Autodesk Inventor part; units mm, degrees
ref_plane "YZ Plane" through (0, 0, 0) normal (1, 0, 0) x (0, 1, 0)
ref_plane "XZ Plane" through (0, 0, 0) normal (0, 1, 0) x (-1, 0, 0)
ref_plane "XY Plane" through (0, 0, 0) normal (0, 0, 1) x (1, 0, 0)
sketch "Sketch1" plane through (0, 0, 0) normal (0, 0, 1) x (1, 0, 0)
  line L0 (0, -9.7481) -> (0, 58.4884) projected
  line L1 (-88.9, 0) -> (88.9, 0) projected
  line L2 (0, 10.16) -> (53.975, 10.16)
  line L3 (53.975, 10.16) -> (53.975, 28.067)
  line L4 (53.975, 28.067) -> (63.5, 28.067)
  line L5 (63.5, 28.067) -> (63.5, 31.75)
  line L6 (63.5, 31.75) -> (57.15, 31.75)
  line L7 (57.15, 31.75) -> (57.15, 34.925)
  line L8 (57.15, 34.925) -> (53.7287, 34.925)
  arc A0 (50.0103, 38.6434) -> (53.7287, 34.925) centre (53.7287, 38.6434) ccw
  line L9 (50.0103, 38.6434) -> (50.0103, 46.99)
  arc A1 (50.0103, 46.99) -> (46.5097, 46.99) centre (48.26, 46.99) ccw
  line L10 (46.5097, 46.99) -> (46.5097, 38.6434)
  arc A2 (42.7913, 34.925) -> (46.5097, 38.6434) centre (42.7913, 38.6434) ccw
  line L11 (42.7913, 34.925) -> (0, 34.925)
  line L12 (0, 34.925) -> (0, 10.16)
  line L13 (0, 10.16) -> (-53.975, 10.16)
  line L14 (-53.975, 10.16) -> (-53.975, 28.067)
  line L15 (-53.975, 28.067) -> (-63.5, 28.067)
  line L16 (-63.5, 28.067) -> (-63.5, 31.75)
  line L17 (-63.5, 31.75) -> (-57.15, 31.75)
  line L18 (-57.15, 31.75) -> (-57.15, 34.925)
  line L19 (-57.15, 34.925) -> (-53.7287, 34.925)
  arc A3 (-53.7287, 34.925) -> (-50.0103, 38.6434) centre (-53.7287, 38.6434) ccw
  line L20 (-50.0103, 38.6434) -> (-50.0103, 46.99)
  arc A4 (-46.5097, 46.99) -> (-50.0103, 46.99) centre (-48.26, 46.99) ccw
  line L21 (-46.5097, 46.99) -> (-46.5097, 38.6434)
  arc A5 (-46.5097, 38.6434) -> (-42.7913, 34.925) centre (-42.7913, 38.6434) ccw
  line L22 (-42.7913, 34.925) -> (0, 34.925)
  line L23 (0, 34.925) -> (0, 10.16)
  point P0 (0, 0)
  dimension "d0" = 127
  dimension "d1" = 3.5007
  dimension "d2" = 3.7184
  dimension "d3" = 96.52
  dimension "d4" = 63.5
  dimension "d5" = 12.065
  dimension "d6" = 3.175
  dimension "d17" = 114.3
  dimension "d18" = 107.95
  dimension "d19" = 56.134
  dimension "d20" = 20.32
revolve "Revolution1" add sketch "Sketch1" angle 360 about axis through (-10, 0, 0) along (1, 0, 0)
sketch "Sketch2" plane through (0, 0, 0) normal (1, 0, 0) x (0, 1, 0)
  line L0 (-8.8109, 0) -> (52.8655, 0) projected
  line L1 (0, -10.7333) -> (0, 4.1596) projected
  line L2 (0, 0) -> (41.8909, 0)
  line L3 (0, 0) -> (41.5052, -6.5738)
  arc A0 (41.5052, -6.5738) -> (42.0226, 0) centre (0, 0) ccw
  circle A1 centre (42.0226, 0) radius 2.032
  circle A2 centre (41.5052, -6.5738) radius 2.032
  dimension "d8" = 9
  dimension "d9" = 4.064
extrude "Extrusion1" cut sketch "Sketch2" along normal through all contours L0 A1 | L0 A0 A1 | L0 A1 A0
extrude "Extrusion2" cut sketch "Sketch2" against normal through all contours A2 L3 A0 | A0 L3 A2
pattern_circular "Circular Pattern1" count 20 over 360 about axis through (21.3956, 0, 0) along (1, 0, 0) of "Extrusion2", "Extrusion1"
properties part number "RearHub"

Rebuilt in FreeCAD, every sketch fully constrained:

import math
import FreeCAD as App
import Part
import Sketcher
Q = App.Units.Quantity

doc = App.newDocument("Part")
body = doc.addObject("PartDesign::Body", "Body")

# Sketch on XY plane
sketch1 = body.newObject("Sketcher::SketchObject", "Sketch")
sketch1.AttachmentSupport = (doc.getObject("XY_Plane"), [""])
sketch1.MapMode = "FlatFace"
sketch1.addGeometry([
    Part.LineSegment(App.Vector(-54, 10.2, 0), App.Vector(54, 10.2, 0)),  # 0
    Part.LineSegment(App.Vector(54, 10.2, 0), App.Vector(54, 28.1, 0)),  # 1
    Part.LineSegment(App.Vector(54, 28.1, 0), App.Vector(63.5, 28.1, 0)),  # 2
    Part.LineSegment(App.Vector(63.5, 28.1, 0), App.Vector(63.5, 31.8, 0)),  # 3
    Part.LineSegment(App.Vector(63.5, 31.8, 0), App.Vector(57.1, 31.8, 0)),  # 4
    Part.LineSegment(App.Vector(57.1, 31.8, 0), App.Vector(57.1, 34.9, 0)),  # 5
    Part.LineSegment(App.Vector(57.1, 34.9, 0), App.Vector(53.7, 34.9, 0)),  # 6
    Part.ArcOfCircle(Part.Circle(App.Vector(53.7, 38.6, 0), App.Vector(0, 0, 1), 3.7), math.radians(180), math.radians(270)),  # 7
    Part.LineSegment(App.Vector(50, 38.6, 0), App.Vector(50, 47, 0)),  # 8
    Part.ArcOfCircle(Part.Circle(App.Vector(48.3, 47, 0), App.Vector(0, 0, 1), 1.8), math.radians(0), math.radians(180)),  # 9
    Part.LineSegment(App.Vector(46.5, 47, 0), App.Vector(46.5, 38.6, 0)),  # 10
    Part.ArcOfCircle(Part.Circle(App.Vector(42.8, 38.6, 0), App.Vector(0, 0, 1), 3.7), math.radians(-90), math.radians(0)),  # 11
    Part.LineSegment(App.Vector(42.8, 34.9, 0), App.Vector(-42.8, 34.9, 0)),  # 12
    Part.ArcOfCircle(Part.Circle(App.Vector(-42.8, 38.6, 0), App.Vector(0, 0, 1), 3.7), math.radians(180), math.radians(270)),  # 13
    Part.LineSegment(App.Vector(-46.5, 38.6, 0), App.Vector(-46.5, 47, 0)),  # 14
    Part.ArcOfCircle(Part.Circle(App.Vector(-48.3, 47, 0), App.Vector(0, 0, 1), 1.8), math.radians(0), math.radians(180)),  # 15
    Part.LineSegment(App.Vector(-50, 47, 0), App.Vector(-50, 38.6, 0)),  # 16
    Part.ArcOfCircle(Part.Circle(App.Vector(-53.7, 38.6, 0), App.Vector(0, 0, 1), 3.7), math.radians(-90), math.radians(0)),  # 17
    Part.LineSegment(App.Vector(-53.7, 34.9, 0), App.Vector(-57.1, 34.9, 0)),  # 18
    Part.LineSegment(App.Vector(-57.1, 34.9, 0), App.Vector(-57.1, 31.8, 0)),  # 19
    Part.LineSegment(App.Vector(-57.1, 31.8, 0), App.Vector(-63.5, 31.8, 0)),  # 20
    Part.LineSegment(App.Vector(-63.5, 31.8, 0), App.Vector(-63.5, 28.1, 0)),  # 21
    Part.LineSegment(App.Vector(-63.5, 28.1, 0), App.Vector(-54, 28.1, 0)),  # 22
    Part.LineSegment(App.Vector(-54, 28.1, 0), App.Vector(-54, 10.2, 0)),  # 23
], False)
sketch1.addConstraint([
    Sketcher.Constraint("Coincident", 0, 2, 1, 1),
    Sketcher.Constraint("Coincident", 1, 2, 2, 1),
    Sketcher.Constraint("Coincident", 2, 2, 3, 1),
    Sketcher.Constraint("Coincident", 3, 2, 4, 1),
    Sketcher.Constraint("Coincident", 4, 2, 5, 1),
    Sketcher.Constraint("Coincident", 5, 2, 6, 1),
    Sketcher.Constraint("Tangent", 6, 2, 7, 2),
    Sketcher.Constraint("Tangent", 7, 1, 8, 1),
    Sketcher.Constraint("Tangent", 8, 2, 9, 1),
    Sketcher.Constraint("Tangent", 9, 2, 10, 1),
    Sketcher.Constraint("Tangent", 10, 2, 11, 2),
    Sketcher.Constraint("Tangent", 11, 1, 12, 1),
    Sketcher.Constraint("Tangent", 12, 2, 13, 2),
    Sketcher.Constraint("Tangent", 13, 1, 14, 1),
    Sketcher.Constraint("Tangent", 14, 2, 15, 1),
    Sketcher.Constraint("Tangent", 15, 2, 16, 1),
    Sketcher.Constraint("Tangent", 16, 2, 17, 2),
    Sketcher.Constraint("Tangent", 17, 1, 18, 1),
    Sketcher.Constraint("Coincident", 18, 2, 19, 1),
    Sketcher.Constraint("Coincident", 19, 2, 20, 1),
    Sketcher.Constraint("Coincident", 20, 2, 21, 1),
    Sketcher.Constraint("Coincident", 21, 2, 22, 1),
    Sketcher.Constraint("Coincident", 22, 2, 23, 1),
    Sketcher.Constraint("Coincident", 23, 2, 0, 1),
    Sketcher.Constraint("Horizontal", 0),
    Sketcher.Constraint("Vertical", 1),
    Sketcher.Constraint("Horizontal", 2),
    Sketcher.Constraint("Vertical", 3),
    Sketcher.Constraint("Horizontal", 4),
    Sketcher.Constraint("Vertical", 5),
    Sketcher.Constraint("Horizontal", 6),
    Sketcher.Constraint("Vertical", 8),
    Sketcher.Constraint("Vertical", 10),
    Sketcher.Constraint("Horizontal", 12),
    Sketcher.Constraint("Vertical", 14),
    Sketcher.Constraint("Vertical", 16),
    Sketcher.Constraint("Horizontal", 18),
    Sketcher.Constraint("Vertical", 19),
    Sketcher.Constraint("Horizontal", 20),
    Sketcher.Constraint("Vertical", 21),
    Sketcher.Constraint("Horizontal", 22),
    Sketcher.Constraint("Vertical", 23),
    Sketcher.Constraint("Equal", 7, 11),
    Sketcher.Constraint("Equal", 11, 13),
    Sketcher.Constraint("Equal", 9, 15),
    Sketcher.Constraint("Equal", 13, 17),
    Sketcher.Constraint("Symmetric", 9, 3, 15, 3, -2),
    Sketcher.Constraint("Symmetric", 5, 2, 18, 2, -2),
    Sketcher.Constraint("Symmetric", 3, 2, 20, 2, -2),
    Sketcher.Constraint("Symmetric", 1, 2, 22, 2, -2),
    Sketcher.Constraint("Horizontal", 7, 3, 11, 3),
    Sketcher.Constraint("DistanceX", 0, 1, 0, 2, Q("4.25 in")),
    Sketcher.Constraint("DistanceX", -1, 1, 2, 2, Q("2.5 in")),
    Sketcher.Constraint("Radius", 7, Q("0.1464 in")),
    Sketcher.Constraint("Radius", 9, Q("0.0689 in")),
    Sketcher.Constraint("DistanceX", 13, 3, 7, 3, Q("3.8 in")),
    Sketcher.Constraint("DistanceY", 5, 1, 5, 2, Q("0.125 in")),
    Sketcher.Constraint("DistanceX", 1, 2, 4, 2, Q("0.125 in")),
    Sketcher.Constraint("DistanceY", 6, 2, 8, 2, Q("0.475 in")),
    Sketcher.Constraint("DistanceY", -1, 1, 0, 2, Q("0.4 in")),
    Sketcher.Constraint("DistanceY", 1, 1, 1, 2, Q("0.705 in")),
    Sketcher.Constraint("DistanceY", 3, 1, 3, 2, Q("0.145 in")),
])
revolution = body.newObject("PartDesign::Revolution", "Revolution")
revolution.Profile = sketch1
revolution.ReferenceAxis = (sketch1, ["H_Axis"])
revolution.Angle = 360

# Sketch on YZ plane
sketch2 = body.newObject("Sketcher::SketchObject", "Sketch001")
sketch2.AttachmentSupport = (doc.getObject("YZ_Plane"), [""])
sketch2.MapMode = "FlatFace"
sketch2.addGeometry(Part.Circle(App.Vector(42, 0, 0), App.Vector(0, 0, 1), 2), False)
sketch2.addConstraint([
    Sketcher.Constraint("PointOnObject", 0, 3, -1),
    Sketcher.Constraint("Diameter", 0, Q("0.16 in")),
    Sketcher.Constraint("DistanceX", -1, 1, 0, 3, Q("42.0226 mm")),
])
pocket1 = body.newObject("PartDesign::Pocket", "Pocket")
pocket1.Profile = sketch2
pocket1.Type = "ThroughAll"
pocket1.Reversed = True

# Sketch on YZ plane
sketch3 = body.newObject("Sketcher::SketchObject", "Sketch002")
sketch3.AttachmentSupport = (doc.getObject("YZ_Plane"), [""])
sketch3.MapMode = "FlatFace"
sketch3.addGeometry(Part.Circle(App.Vector(41.5, -6.6, 0), App.Vector(0, 0, 1), 2), False)
sketch3.addConstraint([
    Sketcher.Constraint("Diameter", 0, Q("0.16 in")),
    Sketcher.Constraint("DistanceY", 0, 3, -1, 1, Q("0.2588 in")),
    Sketcher.Constraint("DistanceX", -1, 1, 0, 3, Q("41.5052 mm")),
])
pocket2 = body.newObject("PartDesign::Pocket", "Pocket001")
pocket2.Profile = sketch3
pocket2.Type = "ThroughAll"
doc.recompute()

polarpattern = body.newObject("PartDesign::PolarPattern", "PolarPattern")
polarpattern.Originals = [pocket2, pocket1]
polarpattern.Axis = (doc.getObject("X_Axis"), [""])
polarpattern.Angle = 360
polarpattern.Occurrences = 20
body.Tip = polarpattern

doc.recompute()
